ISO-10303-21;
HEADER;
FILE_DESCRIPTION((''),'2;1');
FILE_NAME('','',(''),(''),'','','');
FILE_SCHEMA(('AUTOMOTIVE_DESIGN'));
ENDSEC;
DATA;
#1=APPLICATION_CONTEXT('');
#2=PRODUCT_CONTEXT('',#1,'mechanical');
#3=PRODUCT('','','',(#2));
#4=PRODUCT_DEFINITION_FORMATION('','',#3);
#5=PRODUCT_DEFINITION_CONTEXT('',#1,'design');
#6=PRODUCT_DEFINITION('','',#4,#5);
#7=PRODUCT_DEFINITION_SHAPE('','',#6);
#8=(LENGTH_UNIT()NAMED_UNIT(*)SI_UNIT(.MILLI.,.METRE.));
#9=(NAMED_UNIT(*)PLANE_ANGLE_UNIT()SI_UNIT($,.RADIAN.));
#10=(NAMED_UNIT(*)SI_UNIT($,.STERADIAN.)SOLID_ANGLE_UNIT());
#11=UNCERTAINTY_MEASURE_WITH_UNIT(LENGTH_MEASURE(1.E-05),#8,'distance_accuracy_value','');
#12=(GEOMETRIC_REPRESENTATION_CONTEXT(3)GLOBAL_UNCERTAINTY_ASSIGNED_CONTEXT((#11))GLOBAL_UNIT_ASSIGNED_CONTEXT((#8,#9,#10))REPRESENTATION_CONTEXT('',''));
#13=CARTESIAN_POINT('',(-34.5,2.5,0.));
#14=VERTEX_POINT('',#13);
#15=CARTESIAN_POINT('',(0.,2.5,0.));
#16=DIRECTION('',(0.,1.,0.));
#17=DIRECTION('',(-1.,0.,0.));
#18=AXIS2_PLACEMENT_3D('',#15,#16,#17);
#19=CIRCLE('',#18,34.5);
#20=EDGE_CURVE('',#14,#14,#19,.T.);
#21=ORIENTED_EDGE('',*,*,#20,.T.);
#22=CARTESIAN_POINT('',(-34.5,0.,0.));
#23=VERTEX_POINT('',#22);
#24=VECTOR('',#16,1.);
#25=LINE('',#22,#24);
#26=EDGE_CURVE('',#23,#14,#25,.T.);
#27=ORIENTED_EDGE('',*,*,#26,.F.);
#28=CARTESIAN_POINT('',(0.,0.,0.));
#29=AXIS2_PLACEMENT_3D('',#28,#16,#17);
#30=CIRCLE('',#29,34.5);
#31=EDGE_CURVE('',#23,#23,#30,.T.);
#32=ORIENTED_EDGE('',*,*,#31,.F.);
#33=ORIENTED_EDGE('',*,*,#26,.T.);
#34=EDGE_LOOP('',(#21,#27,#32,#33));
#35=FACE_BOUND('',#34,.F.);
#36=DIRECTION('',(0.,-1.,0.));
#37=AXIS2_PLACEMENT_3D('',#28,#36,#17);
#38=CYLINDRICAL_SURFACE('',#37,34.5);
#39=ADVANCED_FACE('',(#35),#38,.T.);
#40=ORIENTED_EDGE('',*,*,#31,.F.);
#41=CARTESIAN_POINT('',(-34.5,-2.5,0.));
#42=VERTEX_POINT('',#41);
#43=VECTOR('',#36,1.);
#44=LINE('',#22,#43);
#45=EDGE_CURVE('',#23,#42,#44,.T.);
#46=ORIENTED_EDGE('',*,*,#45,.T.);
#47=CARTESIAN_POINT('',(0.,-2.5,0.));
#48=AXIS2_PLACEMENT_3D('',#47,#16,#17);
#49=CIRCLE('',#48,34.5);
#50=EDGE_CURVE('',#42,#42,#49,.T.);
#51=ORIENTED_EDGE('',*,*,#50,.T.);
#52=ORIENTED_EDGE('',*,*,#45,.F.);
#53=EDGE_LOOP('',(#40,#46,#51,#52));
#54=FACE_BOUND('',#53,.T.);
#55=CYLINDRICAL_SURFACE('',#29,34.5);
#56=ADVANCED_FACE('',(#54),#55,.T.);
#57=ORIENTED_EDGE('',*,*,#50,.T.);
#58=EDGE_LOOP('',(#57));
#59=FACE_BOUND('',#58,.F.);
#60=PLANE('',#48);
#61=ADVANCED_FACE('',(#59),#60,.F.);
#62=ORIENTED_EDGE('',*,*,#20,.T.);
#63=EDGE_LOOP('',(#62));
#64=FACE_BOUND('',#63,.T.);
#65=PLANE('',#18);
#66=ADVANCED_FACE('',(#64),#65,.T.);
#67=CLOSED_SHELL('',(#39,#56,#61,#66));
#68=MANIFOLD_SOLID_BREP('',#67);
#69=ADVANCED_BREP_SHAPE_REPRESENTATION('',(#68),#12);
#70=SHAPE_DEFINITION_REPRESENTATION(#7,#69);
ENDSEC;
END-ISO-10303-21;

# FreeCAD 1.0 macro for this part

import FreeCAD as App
import Part
import Sketcher
Q = App.Units.Quantity

doc = App.newDocument("Part")
params = doc.addObject("Spreadsheet::Sheet", "Params")
for row, (alias, value) in enumerate([
    ("sketch1_diameter", "69 mm"),
    ("pad1_length", "5 mm"),
], start=1):
    params.set(f"A{row}", alias)
    params.set(f"B{row}", "=" + value)
    params.setAlias(f"B{row}", alias)

body = doc.addObject("PartDesign::Body", "Body")

# Sketch on XZ plane
sketch1 = doc.addObject("Sketcher::SketchObject", "Sketch")
body.addObject(sketch1)
sketch1.AttachmentSupport = (doc.XZ_Plane, [""])
sketch1.MapMode = "FlatFace"
sketch1.addGeometry(Part.Circle(App.Vector(0, 0, 0), App.Vector(0, 0, 1), 34.5), False)
sketch1.addConstraint(Sketcher.Constraint("Coincident", 0, 3, -1, 1))
sketch1.addConstraint(Sketcher.Constraint("Diameter", 0, Q("69 mm")))
sketch1.setExpression("Constraints[1]", "Params.sketch1_diameter")
pad1 = doc.addObject("PartDesign::Pad", "Pad")
body.addObject(pad1)
pad1.Profile = sketch1
pad1.setExpression("Length", "Params.pad1_length")
pad1.Midplane = True

doc.recompute()
